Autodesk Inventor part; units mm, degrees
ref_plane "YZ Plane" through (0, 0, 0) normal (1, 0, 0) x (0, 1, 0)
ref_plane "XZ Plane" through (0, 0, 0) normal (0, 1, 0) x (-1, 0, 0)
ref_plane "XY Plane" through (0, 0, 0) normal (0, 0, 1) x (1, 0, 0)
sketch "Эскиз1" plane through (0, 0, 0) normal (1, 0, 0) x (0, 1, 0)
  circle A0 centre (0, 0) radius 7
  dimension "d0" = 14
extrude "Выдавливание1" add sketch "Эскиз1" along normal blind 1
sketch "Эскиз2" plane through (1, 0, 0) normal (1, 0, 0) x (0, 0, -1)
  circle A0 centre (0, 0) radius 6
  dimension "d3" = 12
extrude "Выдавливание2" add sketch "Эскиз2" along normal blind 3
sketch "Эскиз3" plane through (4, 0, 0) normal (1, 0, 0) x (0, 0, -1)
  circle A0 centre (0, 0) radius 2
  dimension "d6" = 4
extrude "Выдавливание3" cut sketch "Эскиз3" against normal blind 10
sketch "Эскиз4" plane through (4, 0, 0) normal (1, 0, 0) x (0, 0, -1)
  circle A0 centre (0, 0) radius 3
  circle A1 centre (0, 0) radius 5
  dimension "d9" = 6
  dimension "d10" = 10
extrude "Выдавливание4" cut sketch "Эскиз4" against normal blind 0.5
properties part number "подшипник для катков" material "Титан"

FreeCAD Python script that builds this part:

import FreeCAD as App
import Part
import Sketcher

V = App.Vector
Q = App.Units.Quantity

doc = App.newDocument("Part")
body = doc.addObject("PartDesign::Body", "Body")

# Sketch on YZ plane
sketch1 = body.newObject("Sketcher::SketchObject", "Sketch")
sketch1.AttachmentSupport = (doc.getObject("YZ_Plane"), [""])
sketch1.MapMode = "FlatFace"
sketch1.addGeometry(Part.Circle(V(0, 0, 0), V(0, 0, 1), 7), False)
sketch1.addConstraint(Sketcher.Constraint("Coincident", 0, 3, -1, 1))
sketch1.addConstraint(Sketcher.Constraint("Diameter", 0, Q("14 mm")))
pad1 = body.newObject("PartDesign::Pad", "Pad")
pad1.Profile = sketch1
pad1.Length = 1

# Sketch on YZ plane
sketch2 = body.newObject("Sketcher::SketchObject", "Sketch001")
sketch2.AttachmentSupport = (doc.getObject("YZ_Plane"), [""])
sketch2.MapMode = "FlatFace"
sketch2.AttachmentOffset = App.Placement(V(0, 0, 1), App.Rotation())
sketch2.addGeometry(Part.Circle(V(0, 0, 0), V(0, 0, 1), 6), False)
sketch2.addConstraint(Sketcher.Constraint("Coincident", 0, 3, -1, 1))
sketch2.addConstraint(Sketcher.Constraint("Diameter", 0, Q("12 mm")))
pad2 = body.newObject("PartDesign::Pad", "Pad001")
pad2.Profile = sketch2
pad2.Length = 3

# Sketch on YZ plane
sketch3 = body.newObject("Sketcher::SketchObject", "Sketch002")
sketch3.AttachmentSupport = (doc.getObject("YZ_Plane"), [""])
sketch3.MapMode = "FlatFace"
sketch3.AttachmentOffset = App.Placement(V(0, 0, 4), App.Rotation())
sketch3.addGeometry(Part.Circle(V(0, 0, 0), V(0, 0, 1), 2), False)
sketch3.addConstraint(Sketcher.Constraint("Coincident", 0, 3, -1, 1))
sketch3.addConstraint(Sketcher.Constraint("Diameter", 0, Q("4 mm")))
pocket1 = body.newObject("PartDesign::Pocket", "Pocket")
pocket1.Profile = sketch3
pocket1.Length = 10

# Sketch on YZ plane
sketch4 = body.newObject("Sketcher::SketchObject", "Sketch003")
sketch4.AttachmentSupport = (doc.getObject("YZ_Plane"), [""])
sketch4.MapMode = "FlatFace"
sketch4.AttachmentOffset = App.Placement(V(0, 0, 4), App.Rotation())
sketch4.addGeometry(Part.Circle(V(0, 0, 0), V(0, 0, 1), 5), False)
sketch4.addGeometry(Part.Circle(V(0, 0, 0), V(0, 0, 1), 3), False)
sketch4.addConstraint(Sketcher.Constraint("Coincident", 0, 3, -1, 1))
sketch4.addConstraint(Sketcher.Constraint("Coincident", 1, 3, -1, 1))
sketch4.addConstraint(Sketcher.Constraint("Diameter", 0, Q("10 mm")))
sketch4.addConstraint(Sketcher.Constraint("Diameter", 1, Q("6 mm")))
pocket2 = body.newObject("PartDesign::Pocket", "Pocket001")
pocket2.Profile = sketch4
pocket2.Length = 0.5

doc.recompute()
